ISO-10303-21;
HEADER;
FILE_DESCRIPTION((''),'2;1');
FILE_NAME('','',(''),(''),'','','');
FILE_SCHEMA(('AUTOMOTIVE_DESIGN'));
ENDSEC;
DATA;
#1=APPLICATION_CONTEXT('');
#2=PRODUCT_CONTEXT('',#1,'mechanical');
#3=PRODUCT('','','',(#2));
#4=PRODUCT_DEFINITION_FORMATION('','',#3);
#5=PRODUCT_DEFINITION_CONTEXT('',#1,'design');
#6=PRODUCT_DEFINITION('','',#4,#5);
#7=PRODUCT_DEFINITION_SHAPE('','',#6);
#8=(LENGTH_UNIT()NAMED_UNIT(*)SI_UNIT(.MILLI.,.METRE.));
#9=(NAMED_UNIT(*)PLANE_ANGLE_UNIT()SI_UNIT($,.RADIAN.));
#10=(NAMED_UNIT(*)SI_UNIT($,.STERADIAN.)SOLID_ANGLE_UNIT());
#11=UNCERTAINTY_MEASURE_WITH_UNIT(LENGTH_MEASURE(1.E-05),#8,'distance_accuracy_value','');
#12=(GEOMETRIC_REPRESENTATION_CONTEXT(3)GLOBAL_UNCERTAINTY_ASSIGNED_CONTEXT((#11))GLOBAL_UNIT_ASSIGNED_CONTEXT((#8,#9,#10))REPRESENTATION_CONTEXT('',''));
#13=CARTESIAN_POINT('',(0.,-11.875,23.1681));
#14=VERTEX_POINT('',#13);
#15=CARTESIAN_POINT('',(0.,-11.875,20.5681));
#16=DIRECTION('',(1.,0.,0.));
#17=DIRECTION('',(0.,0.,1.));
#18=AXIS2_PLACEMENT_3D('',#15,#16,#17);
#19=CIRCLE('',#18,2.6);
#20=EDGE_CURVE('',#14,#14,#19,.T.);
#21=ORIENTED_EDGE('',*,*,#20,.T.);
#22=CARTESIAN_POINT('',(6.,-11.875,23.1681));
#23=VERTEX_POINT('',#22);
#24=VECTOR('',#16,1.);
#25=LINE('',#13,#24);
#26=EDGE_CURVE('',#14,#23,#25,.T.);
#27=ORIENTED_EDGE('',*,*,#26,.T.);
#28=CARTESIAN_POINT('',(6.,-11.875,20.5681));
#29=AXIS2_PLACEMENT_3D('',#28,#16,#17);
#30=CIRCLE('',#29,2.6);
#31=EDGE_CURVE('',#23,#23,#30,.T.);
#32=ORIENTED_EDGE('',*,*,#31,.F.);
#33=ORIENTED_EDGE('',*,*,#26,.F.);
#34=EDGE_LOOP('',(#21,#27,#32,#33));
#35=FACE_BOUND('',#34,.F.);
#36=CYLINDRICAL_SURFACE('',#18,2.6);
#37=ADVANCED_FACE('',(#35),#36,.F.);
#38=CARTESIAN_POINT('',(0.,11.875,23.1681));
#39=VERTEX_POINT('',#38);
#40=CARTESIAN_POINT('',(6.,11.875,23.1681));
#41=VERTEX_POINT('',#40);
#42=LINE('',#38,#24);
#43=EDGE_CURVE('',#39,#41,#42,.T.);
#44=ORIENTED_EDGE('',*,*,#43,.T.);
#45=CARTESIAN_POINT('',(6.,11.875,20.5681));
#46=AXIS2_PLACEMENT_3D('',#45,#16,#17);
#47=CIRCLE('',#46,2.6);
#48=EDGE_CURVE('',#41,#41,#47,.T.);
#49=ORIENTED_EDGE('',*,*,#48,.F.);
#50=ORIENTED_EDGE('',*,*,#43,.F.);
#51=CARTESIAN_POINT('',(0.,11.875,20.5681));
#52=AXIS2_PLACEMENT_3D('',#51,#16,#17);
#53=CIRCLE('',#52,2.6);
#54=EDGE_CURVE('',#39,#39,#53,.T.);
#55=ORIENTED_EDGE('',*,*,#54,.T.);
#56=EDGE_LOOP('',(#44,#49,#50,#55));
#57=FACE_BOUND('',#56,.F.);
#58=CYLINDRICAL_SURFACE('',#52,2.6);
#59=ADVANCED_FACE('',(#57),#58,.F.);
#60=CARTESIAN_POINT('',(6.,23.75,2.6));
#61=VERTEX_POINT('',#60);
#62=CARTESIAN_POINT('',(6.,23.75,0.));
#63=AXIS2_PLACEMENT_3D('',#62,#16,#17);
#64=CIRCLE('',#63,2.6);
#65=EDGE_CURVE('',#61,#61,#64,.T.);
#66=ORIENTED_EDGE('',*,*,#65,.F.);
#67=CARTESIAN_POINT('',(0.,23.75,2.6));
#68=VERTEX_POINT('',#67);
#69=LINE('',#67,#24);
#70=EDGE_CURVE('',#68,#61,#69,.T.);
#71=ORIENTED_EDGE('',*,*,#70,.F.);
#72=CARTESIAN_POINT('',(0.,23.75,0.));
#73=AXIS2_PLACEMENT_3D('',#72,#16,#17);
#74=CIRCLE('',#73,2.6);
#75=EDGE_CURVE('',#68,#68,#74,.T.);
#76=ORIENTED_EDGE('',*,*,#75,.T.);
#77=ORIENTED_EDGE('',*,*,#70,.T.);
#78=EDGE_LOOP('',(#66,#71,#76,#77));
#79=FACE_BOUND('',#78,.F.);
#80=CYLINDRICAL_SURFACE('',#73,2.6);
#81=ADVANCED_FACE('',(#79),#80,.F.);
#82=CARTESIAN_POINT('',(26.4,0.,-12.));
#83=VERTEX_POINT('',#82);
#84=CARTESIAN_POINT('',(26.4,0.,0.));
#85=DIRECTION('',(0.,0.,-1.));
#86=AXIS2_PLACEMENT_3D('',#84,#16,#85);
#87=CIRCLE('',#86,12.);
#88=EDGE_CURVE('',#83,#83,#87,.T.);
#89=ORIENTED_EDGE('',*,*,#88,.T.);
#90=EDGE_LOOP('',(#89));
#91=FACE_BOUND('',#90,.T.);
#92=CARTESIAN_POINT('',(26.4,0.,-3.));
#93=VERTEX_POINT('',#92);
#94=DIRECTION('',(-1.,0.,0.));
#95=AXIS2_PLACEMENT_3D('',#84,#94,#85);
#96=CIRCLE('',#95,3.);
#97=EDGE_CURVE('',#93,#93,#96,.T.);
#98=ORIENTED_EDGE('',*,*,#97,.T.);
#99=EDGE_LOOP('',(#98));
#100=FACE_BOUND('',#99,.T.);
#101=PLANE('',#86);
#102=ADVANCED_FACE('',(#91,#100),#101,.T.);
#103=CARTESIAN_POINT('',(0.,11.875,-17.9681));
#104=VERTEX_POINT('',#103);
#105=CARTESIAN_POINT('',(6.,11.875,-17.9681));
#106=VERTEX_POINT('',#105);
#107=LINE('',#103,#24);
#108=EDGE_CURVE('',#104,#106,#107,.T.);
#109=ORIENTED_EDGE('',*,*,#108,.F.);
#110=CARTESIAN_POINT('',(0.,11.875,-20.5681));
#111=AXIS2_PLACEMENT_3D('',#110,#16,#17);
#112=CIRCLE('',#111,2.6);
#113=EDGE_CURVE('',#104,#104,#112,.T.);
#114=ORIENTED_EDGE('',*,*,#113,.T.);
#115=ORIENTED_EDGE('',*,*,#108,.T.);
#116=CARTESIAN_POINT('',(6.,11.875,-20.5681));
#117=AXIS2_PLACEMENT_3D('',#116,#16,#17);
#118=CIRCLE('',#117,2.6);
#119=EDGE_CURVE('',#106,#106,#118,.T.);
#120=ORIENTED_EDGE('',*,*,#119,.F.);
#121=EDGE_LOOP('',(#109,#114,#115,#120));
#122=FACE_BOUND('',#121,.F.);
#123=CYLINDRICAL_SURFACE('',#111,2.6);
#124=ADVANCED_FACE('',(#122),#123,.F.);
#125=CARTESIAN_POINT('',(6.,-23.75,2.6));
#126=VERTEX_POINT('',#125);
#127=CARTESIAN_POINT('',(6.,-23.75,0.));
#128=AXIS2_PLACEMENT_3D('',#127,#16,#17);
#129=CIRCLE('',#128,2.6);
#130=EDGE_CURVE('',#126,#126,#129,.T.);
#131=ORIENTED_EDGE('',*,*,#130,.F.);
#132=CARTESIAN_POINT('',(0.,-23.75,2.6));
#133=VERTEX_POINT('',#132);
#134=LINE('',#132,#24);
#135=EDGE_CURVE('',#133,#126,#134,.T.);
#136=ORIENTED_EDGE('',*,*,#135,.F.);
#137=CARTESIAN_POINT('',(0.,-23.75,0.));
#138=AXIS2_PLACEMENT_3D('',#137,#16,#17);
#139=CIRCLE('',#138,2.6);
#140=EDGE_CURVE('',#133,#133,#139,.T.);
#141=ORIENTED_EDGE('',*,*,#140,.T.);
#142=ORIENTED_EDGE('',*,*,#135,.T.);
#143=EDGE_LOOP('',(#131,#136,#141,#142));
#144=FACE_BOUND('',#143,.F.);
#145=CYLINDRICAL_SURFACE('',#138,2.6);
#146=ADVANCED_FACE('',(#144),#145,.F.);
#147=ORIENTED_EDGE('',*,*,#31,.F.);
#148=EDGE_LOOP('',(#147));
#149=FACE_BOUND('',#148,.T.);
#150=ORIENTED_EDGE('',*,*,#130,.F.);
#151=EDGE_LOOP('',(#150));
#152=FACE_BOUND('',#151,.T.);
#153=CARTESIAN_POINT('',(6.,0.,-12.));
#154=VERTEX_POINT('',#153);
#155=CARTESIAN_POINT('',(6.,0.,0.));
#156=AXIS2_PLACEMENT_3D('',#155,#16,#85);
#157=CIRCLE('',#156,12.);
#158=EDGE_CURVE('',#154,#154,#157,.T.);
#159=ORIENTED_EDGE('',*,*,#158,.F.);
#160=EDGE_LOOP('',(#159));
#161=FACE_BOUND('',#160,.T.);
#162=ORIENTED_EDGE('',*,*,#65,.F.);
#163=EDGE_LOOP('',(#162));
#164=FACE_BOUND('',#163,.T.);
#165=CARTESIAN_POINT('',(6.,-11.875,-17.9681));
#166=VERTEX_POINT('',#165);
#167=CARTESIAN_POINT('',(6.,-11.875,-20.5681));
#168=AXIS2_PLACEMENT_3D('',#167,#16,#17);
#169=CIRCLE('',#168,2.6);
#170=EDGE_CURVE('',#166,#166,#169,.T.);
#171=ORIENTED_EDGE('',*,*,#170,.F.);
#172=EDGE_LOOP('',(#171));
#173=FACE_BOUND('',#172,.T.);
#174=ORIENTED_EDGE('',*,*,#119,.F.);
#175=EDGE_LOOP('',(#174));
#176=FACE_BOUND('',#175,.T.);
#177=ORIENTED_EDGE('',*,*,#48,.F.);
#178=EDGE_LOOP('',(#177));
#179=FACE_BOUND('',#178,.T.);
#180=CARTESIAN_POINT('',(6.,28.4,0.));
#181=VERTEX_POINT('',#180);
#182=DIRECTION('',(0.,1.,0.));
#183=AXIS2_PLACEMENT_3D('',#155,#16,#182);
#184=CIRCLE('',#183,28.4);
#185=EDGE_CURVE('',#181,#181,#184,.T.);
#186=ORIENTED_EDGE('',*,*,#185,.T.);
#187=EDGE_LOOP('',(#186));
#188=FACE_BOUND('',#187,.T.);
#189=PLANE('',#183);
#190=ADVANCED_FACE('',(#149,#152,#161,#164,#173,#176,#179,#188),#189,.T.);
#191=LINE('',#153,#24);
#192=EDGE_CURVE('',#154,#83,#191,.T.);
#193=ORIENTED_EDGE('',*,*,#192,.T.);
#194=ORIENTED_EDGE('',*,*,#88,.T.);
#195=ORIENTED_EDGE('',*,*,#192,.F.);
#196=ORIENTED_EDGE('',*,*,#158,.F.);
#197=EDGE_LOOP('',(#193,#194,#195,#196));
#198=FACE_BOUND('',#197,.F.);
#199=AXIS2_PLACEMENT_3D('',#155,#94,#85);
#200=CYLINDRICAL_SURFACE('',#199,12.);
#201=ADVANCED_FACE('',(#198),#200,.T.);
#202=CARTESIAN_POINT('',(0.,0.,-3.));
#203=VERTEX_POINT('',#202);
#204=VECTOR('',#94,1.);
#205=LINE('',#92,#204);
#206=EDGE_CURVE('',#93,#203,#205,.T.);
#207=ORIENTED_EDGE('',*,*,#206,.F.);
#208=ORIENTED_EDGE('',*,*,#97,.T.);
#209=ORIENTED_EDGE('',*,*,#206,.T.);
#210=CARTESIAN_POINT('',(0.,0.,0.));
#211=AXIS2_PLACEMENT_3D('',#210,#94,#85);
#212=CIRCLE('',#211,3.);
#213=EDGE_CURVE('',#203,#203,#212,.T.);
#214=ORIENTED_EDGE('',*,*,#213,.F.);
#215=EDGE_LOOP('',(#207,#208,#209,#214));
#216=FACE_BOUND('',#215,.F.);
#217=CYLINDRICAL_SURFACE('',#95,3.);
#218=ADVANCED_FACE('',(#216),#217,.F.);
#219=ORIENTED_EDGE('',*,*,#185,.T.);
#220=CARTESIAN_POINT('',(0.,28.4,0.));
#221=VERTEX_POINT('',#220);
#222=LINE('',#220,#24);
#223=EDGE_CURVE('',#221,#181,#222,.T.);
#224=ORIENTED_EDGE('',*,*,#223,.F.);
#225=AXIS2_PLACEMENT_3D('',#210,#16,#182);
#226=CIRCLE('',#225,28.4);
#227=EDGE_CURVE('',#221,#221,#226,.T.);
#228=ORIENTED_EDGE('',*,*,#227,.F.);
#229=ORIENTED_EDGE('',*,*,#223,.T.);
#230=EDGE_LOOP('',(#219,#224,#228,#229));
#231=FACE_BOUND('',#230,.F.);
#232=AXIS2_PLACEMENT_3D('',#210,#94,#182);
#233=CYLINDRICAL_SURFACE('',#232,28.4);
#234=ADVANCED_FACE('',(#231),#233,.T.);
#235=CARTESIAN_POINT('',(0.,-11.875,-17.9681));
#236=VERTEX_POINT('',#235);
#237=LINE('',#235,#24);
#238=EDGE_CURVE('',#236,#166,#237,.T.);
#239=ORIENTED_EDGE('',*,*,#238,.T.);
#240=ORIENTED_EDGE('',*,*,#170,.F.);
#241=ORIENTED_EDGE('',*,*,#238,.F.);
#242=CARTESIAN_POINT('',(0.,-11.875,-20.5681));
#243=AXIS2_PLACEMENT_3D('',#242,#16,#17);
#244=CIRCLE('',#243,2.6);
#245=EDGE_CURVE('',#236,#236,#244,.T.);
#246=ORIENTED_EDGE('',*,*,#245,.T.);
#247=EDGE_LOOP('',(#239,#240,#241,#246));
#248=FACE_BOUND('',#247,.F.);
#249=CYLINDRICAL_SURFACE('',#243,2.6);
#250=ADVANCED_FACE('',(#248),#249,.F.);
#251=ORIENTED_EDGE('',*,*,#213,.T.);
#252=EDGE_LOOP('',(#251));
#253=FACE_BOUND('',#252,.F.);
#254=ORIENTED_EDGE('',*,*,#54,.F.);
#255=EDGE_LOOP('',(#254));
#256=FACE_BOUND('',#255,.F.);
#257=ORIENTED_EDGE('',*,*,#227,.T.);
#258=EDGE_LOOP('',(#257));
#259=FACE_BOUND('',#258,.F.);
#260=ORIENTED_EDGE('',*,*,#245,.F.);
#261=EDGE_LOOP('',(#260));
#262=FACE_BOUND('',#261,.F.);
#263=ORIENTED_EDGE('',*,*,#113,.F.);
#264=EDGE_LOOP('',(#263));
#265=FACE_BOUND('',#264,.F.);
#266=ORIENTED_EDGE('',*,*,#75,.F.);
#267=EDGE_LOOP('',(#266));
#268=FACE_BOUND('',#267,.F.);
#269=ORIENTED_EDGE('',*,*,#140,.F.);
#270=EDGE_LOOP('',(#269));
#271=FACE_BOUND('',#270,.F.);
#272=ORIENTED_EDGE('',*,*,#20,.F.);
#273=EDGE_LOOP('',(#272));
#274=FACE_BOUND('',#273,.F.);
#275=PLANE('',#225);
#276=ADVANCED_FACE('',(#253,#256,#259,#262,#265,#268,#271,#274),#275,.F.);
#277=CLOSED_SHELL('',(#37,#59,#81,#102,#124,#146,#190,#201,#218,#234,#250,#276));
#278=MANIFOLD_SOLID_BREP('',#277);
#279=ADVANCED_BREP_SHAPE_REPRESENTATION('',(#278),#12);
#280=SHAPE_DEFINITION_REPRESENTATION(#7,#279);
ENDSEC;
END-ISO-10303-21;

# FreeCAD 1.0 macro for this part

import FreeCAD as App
import Part
import Sketcher
Q = App.Units.Quantity

doc = App.newDocument("Part")
body = doc.addObject("PartDesign::Body", "Body")

sketch1 = doc.addObject("Sketcher::SketchObject", "Sketch")
body.addObject(sketch1)
sketch1.AttachmentSupport = (doc.YZ_Plane, [""])
sketch1.MapMode = "FlatFace"
sketch1.addGeometry(Part.Circle(App.Vector(0, 0, 0), App.Vector(0, 0, 1), 28), False)
sketch1.addConstraint(Sketcher.Constraint("Coincident", 0, 3, -1, 1))
sketch1.addConstraint(Sketcher.Constraint("Diameter", 0, Q("56.8 mm")))
pad1 = doc.addObject("PartDesign::Pad", "Pad")
body.addObject(pad1)
pad1.Profile = sketch1
pad1.Length = 6

sketch2 = doc.addObject("Sketcher::SketchObject", "Sketch001")
body.addObject(sketch2)
sketch2.AttachmentSupport = (doc.YZ_Plane, [""])
sketch2.MapMode = "FlatFace"
sketch2.AttachmentOffset = App.Placement(App.Vector(0, 0, 6), App.Rotation())
sketch2.addGeometry(Part.Circle(App.Vector(0, 0, 0), App.Vector(0, 0, 1), 12), False)
sketch2.addConstraint(Sketcher.Constraint("Coincident", 0, 3, -1, 1))
sketch2.addConstraint(Sketcher.Constraint("Diameter", 0, Q("24 mm")))
pad2 = doc.addObject("PartDesign::Pad", "Pad001")
body.addObject(pad2)
pad2.Profile = sketch2
pad2.Length = 20.4

sketch3 = doc.addObject("Sketcher::SketchObject", "Sketch002")
body.addObject(sketch3)
sketch3.AttachmentSupport = (doc.YZ_Plane, [""])
sketch3.MapMode = "FlatFace"
sketch3.AttachmentOffset = App.Placement(App.Vector(0, 0, 26.4), App.Rotation())
sketch3.addGeometry(Part.Circle(App.Vector(0, 0, 0), App.Vector(0, 0, 1), 3), False)
sketch3.addConstraint(Sketcher.Constraint("Coincident", 0, 3, -1, 1))
sketch3.addConstraint(Sketcher.Constraint("Diameter", 0, Q("6 mm")))
doc.recompute()
hole = doc.addObject("PartDesign::Hole", "Hole")
body.addObject(hole)
hole.Profile = sketch3
hole.ThreadType = "None"
hole.Diameter = 6
hole.DepthType = "ThroughAll"

sketch4 = doc.addObject("Sketcher::SketchObject", "Sketch003")
body.addObject(sketch4)
sketch4.AttachmentSupport = (doc.YZ_Plane, [""])
sketch4.MapMode = "FlatFace"
sketch4.addGeometry(Part.Circle(App.Vector(11.9, 20.6, 0), App.Vector(0, 0, 1), 2.6), False)
sketch4.addGeometry(Part.Circle(App.Vector(23.8, 0, 0), App.Vector(0, 0, 1), 2.6), False)
sketch4.addGeometry(Part.Circle(App.Vector(-11.9, 20.6, 0), App.Vector(0, 0, 1), 2.6), False)
sketch4.addGeometry(Part.Circle(App.Vector(-23.8, 0, 0), App.Vector(0, 0, 1), 2.6), False)
sketch4.addGeometry(Part.Circle(App.Vector(-11.9, -20.6, 0), App.Vector(0, 0, 1), 2.6), False)
sketch4.addGeometry(Part.Circle(App.Vector(11.9, -20.6, 0), App.Vector(0, 0, 1), 2.6), False)
sketch4.addConstraint(Sketcher.Constraint("Equal", 0, 1))
sketch4.addConstraint(Sketcher.Constraint("Equal", 1, 2))
sketch4.addConstraint(Sketcher.Constraint("Equal", 2, 3))
sketch4.addConstraint(Sketcher.Constraint("Equal", 3, 4))
sketch4.addConstraint(Sketcher.Constraint("Equal", 4, 5))
sketch4.addConstraint(Sketcher.Constraint("Symmetric", 1, 3, 3, 3, -1, 1))
sketch4.addConstraint(Sketcher.Constraint("Symmetric", 0, 3, 4, 3, -1, 1))
sketch4.addConstraint(Sketcher.Constraint("Symmetric", 2, 3, 5, 3, -1, 1))
sketch4.addConstraint(Sketcher.Constraint("Symmetric", 0, 3, 2, 3, -2))
sketch4.addConstraint(Sketcher.Constraint("PointOnObject", 1, 3, -1))
sketch4.addConstraint(Sketcher.Constraint("Diameter", 0, Q("5.2 mm")))
sketch4.addConstraint(Sketcher.Constraint("DistanceX", 3, 3, 1, 3, Q("47.5 mm")))
sketch4.addConstraint(Sketcher.Constraint("DistanceX", 2, 3, 0, 3, Q("23.75 mm")))
sketch4.addConstraint(Sketcher.Constraint("DistanceY", -1, 1, 0, 3, Q("20.568 mm")))
doc.recompute()
hole2 = doc.addObject("PartDesign::Hole", "Hole001")
body.addObject(hole2)
hole2.Profile = sketch4
hole2.ThreadType = "None"
hole2.Diameter = 5.2
hole2.DepthType = "ThroughAll"
hole2.Reversed = True

doc.recompute()
